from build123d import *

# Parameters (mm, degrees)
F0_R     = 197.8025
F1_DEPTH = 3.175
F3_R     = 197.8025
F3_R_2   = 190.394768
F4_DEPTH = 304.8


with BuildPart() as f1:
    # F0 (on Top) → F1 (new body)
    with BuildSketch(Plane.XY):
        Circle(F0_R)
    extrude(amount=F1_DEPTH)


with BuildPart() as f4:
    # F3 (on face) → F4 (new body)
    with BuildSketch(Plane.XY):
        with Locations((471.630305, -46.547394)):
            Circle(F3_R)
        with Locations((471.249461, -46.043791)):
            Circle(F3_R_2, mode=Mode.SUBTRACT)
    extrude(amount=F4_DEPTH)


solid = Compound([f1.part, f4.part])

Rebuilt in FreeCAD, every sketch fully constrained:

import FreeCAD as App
import Part
import Sketcher

V = App.Vector
Q = App.Units.Quantity

doc = App.newDocument("Part")
body = doc.addObject("PartDesign::Body", "Body")

# Sketch on XY plane
sketch1 = body.newObject("Sketcher::SketchObject", "Sketch")
sketch1.AttachmentSupport = (doc.getObject("XY_Plane"), [""])
sketch1.MapMode = "FlatFace"
sketch1.addGeometry(Part.Circle(V(0, 0, 0), V(0, 0, 1), 197.8025), False)
sketch1.addConstraint(Sketcher.Constraint("Coincident", 0, 3, -1, 1))
sketch1.addConstraint(Sketcher.Constraint("Diameter", 0, Q("15.575 in")))
pad1 = body.newObject("PartDesign::Pad", "Pad")
pad1.Profile = sketch1
pad1.Length = Q("0.125 in")
body2 = doc.addObject("PartDesign::Body", "Body001")

# Sketch on XY plane
sketch2 = body2.newObject("Sketcher::SketchObject", "Sketch001")
sketch2.AttachmentSupport = (doc.getObject("XY_Plane001"), [""])
sketch2.MapMode = "FlatFace"
sketch2.addGeometry(Part.Circle(V(471.630305, -46.547394, 0), V(0, 0, 1), 197.8025), False)
sketch2.addGeometry(Part.Circle(V(471.249461, -46.043791, 0), V(0, 0, 1), 190.394768), False)
sketch2.addConstraint(Sketcher.Constraint("Diameter", 0, Q("15.575 in")))
sketch2.addConstraint(Sketcher.Constraint("Diameter", 1, Q("380.789536 mm")))
sketch2.addConstraint(Sketcher.Constraint("DistanceX", -1, 1, 1, 3, Q("471.249461 mm")))
sketch2.addConstraint(Sketcher.Constraint("DistanceY", 1, 3, -1, 1, Q("46.043791 mm")))
sketch2.addConstraint(Sketcher.Constraint("DistanceX", -1, 1, 0, 3, Q("471.630305 mm")))
sketch2.addConstraint(Sketcher.Constraint("DistanceY", 0, 3, -1, 1, Q("46.547394 mm")))
pad2 = body2.newObject("PartDesign::Pad", "Pad001")
pad2.Profile = sketch2
pad2.Length = Q("12 in")

doc.recompute()
